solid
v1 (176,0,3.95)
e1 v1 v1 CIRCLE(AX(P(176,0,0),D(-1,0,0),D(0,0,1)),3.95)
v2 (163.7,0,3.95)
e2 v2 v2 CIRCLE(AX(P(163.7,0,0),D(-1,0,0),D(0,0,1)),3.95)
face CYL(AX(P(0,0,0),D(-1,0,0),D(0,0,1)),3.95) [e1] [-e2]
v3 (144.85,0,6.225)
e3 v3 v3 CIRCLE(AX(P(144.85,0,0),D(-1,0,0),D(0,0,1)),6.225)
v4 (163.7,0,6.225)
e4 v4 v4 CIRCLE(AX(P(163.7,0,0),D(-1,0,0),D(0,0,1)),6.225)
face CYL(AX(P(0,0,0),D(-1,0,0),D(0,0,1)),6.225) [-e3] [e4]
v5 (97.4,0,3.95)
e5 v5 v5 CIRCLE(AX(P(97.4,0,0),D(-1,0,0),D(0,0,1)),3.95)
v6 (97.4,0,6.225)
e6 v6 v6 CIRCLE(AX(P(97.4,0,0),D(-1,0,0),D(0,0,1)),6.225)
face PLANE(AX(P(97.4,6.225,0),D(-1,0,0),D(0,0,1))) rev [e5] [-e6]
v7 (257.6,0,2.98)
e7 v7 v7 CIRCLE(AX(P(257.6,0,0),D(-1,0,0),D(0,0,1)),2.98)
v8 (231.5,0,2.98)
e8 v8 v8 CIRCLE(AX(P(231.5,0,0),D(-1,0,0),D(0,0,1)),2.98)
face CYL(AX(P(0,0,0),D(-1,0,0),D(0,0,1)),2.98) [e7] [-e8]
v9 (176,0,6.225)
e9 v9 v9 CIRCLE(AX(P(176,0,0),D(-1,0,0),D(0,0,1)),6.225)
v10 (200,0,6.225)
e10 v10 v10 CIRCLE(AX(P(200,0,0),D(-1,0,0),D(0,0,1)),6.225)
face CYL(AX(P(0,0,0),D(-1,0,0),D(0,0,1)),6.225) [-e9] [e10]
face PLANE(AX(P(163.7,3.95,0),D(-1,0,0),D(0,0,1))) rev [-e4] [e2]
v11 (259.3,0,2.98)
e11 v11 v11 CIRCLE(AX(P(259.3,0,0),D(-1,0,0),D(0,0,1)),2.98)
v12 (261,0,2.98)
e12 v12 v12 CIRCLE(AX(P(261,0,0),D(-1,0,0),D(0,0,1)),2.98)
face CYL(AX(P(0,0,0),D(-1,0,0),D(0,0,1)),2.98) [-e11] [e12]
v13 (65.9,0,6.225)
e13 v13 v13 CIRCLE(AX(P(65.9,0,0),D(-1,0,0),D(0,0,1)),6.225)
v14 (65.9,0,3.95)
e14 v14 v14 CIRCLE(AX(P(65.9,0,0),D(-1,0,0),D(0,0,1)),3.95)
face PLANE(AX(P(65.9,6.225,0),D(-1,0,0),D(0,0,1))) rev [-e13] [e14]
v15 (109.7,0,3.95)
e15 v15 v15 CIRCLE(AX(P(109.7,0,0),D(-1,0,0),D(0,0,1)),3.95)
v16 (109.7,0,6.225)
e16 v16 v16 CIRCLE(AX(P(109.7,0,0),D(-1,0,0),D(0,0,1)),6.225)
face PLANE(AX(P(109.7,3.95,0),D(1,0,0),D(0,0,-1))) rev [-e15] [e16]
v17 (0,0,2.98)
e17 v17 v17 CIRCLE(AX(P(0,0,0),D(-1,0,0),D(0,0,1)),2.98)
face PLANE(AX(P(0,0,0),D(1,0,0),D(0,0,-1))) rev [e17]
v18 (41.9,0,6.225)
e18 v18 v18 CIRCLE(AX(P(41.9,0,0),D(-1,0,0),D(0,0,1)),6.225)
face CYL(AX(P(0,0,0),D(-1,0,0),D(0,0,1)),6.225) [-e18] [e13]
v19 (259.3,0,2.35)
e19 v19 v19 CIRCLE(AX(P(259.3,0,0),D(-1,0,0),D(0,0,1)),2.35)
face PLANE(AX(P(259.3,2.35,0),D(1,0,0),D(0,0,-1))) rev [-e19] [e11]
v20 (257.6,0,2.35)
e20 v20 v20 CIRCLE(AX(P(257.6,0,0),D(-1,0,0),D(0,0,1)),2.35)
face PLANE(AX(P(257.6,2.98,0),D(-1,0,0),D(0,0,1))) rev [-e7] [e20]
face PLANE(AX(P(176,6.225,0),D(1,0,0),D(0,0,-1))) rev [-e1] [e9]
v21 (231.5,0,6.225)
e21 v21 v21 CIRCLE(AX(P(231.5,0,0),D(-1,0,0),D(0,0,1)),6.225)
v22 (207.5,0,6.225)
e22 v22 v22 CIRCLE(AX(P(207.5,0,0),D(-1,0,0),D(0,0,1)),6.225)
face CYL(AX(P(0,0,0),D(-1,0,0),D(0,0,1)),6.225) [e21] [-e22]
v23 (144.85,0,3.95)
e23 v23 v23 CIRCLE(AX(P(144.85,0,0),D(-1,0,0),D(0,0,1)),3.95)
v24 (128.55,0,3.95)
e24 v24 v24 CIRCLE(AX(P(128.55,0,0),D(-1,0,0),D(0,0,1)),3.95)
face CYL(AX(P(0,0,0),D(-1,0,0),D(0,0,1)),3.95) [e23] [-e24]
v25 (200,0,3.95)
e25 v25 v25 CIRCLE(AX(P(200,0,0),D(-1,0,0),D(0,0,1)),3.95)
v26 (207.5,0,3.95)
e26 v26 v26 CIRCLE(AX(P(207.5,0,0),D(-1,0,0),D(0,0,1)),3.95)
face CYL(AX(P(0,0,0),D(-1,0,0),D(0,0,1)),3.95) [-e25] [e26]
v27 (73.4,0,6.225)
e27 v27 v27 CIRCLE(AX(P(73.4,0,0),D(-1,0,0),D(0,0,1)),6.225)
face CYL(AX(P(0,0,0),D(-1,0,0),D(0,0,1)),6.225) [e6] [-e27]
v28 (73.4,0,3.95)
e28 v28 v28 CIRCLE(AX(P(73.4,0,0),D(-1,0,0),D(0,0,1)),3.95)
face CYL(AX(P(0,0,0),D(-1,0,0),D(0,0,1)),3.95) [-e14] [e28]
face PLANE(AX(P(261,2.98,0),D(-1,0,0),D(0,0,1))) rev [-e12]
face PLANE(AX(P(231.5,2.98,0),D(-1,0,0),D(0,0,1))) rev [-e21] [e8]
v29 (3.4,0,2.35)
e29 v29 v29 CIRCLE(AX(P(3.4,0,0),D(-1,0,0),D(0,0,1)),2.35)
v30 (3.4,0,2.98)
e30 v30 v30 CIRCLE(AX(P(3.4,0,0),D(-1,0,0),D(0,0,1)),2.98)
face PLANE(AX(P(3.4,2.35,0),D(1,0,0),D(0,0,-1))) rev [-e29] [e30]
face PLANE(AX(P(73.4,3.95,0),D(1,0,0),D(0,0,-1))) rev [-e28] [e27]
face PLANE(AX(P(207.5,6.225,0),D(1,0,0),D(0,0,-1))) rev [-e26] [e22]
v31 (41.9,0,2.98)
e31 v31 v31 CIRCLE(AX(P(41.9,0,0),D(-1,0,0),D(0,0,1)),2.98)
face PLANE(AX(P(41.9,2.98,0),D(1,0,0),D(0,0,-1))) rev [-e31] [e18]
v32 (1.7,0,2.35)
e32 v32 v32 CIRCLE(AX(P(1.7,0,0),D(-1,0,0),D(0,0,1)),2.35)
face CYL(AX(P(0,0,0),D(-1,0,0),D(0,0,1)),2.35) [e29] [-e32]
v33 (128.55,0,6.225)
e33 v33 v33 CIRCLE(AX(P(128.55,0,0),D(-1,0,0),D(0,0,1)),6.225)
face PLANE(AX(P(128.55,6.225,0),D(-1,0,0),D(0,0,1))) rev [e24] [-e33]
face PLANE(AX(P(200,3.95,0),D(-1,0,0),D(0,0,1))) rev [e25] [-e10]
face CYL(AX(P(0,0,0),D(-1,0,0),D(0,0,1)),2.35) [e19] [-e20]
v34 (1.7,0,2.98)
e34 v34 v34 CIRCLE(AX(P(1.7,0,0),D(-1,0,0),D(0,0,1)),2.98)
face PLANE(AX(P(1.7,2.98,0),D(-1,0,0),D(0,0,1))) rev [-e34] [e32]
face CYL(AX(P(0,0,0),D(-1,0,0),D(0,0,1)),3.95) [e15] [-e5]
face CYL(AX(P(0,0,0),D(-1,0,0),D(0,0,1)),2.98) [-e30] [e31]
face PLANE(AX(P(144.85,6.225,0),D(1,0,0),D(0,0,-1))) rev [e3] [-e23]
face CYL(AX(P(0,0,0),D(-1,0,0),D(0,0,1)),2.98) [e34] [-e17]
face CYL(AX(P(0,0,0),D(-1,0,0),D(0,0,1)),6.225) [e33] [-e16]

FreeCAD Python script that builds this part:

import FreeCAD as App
import Part
import Sketcher
from FreeCAD import Vector

doc = App.newDocument("Part")
body = doc.addObject("PartDesign::Body", "Body")

# Sketch on XY plane
sketch1 = body.newObject("Sketcher::SketchObject", "Sketch")
sketch1.AttachmentSupport = (doc.getObject("XY_Plane"), [""])
sketch1.MapMode = "FlatFace"
sketch1.addGeometry([
    Part.LineSegment(Vector(0, 3, 0), Vector(0, 0, 0)),  # 0
    Part.LineSegment(Vector(0, 0, 0), Vector(261, 0, 0)),  # 1
    Part.LineSegment(Vector(261, 0, 0), Vector(261, 3, 0)),  # 2
    Part.LineSegment(Vector(261, 3, 0), Vector(259.3, 3, 0)),  # 3
    Part.LineSegment(Vector(259.3, 3, 0), Vector(259.3, 2.4, 0)),  # 4
    Part.LineSegment(Vector(259.3, 2.4, 0), Vector(257.6, 2.4, 0)),  # 5
    Part.LineSegment(Vector(257.6, 2.4, 0), Vector(257.6, 3, 0)),  # 6
    Part.LineSegment(Vector(257.6, 3, 0), Vector(231.5, 3, 0)),  # 7
    Part.LineSegment(Vector(231.5, 3, 0), Vector(231.5, 6.2, 0)),  # 8
    Part.LineSegment(Vector(231.5, 6.2, 0), Vector(207.5, 6.2, 0)),  # 9
    Part.LineSegment(Vector(207.5, 6.2, 0), Vector(207.5, 4, 0)),  # 10
    Part.LineSegment(Vector(207.5, 4, 0), Vector(200, 4, 0)),  # 11
    Part.LineSegment(Vector(200, 4, 0), Vector(200, 6.2, 0)),  # 12
    Part.LineSegment(Vector(200, 6.2, 0), Vector(176, 6.2, 0)),  # 13
    Part.LineSegment(Vector(176, 6.2, 0), Vector(176, 4, 0)),  # 14
    Part.LineSegment(Vector(176, 4, 0), Vector(163.7, 4, 0)),  # 15
    Part.LineSegment(Vector(163.7, 4, 0), Vector(163.7, 6.2, 0)),  # 16
    Part.LineSegment(Vector(163.7, 6.2, 0), Vector(144.8, 6.2, 0)),  # 17
    Part.LineSegment(Vector(144.8, 6.2, 0), Vector(144.8, 4, 0)),  # 18
    Part.LineSegment(Vector(144.8, 4, 0), Vector(128.6, 4, 0)),  # 19
    Part.LineSegment(Vector(128.6, 4, 0), Vector(128.6, 6.2, 0)),  # 20
    Part.LineSegment(Vector(128.6, 6.2, 0), Vector(109.7, 6.2, 0)),  # 21
    Part.LineSegment(Vector(109.7, 6.2, 0), Vector(109.7, 4, 0)),  # 22
    Part.LineSegment(Vector(109.7, 4, 0), Vector(97.4, 4, 0)),  # 23
    Part.LineSegment(Vector(97.4, 4, 0), Vector(97.4, 6.2, 0)),  # 24
    Part.LineSegment(Vector(97.4, 6.2, 0), Vector(73.4, 6.2, 0)),  # 25
    Part.LineSegment(Vector(73.4, 6.2, 0), Vector(73.4, 4, 0)),  # 26
    Part.LineSegment(Vector(73.4, 4, 0), Vector(65.9, 4, 0)),  # 27
    Part.LineSegment(Vector(65.9, 4, 0), Vector(65.9, 6.2, 0)),  # 28
    Part.LineSegment(Vector(65.9, 6.2, 0), Vector(41.9, 6.2, 0)),  # 29
    Part.LineSegment(Vector(41.9, 6.2, 0), Vector(41.9, 3, 0)),  # 30
    Part.LineSegment(Vector(41.9, 3, 0), Vector(3.4, 3, 0)),  # 31
    Part.LineSegment(Vector(3.4, 3, 0), Vector(3.4, 2.4, 0)),  # 32
    Part.LineSegment(Vector(3.4, 2.4, 0), Vector(1.7, 2.4, 0)),  # 33
    Part.LineSegment(Vector(1.7, 2.4, 0), Vector(1.7, 3, 0)),  # 34
    Part.LineSegment(Vector(1.7, 3, 0), Vector(0, 3, 0)),  # 35
], False)
sketch1.addConstraint([
    Sketcher.Constraint("Coincident", 0, 2, 1, 1),
    Sketcher.Constraint("Coincident", 1, 2, 2, 1),
    Sketcher.Constraint("Coincident", 2, 2, 3, 1),
    Sketcher.Constraint("Coincident", 3, 2, 4, 1),
    Sketcher.Constraint("Coincident", 4, 2, 5, 1),
    Sketcher.Constraint("Coincident", 5, 2, 6, 1),
    Sketcher.Constraint("Coincident", 6, 2, 7, 1),
    Sketcher.Constraint("Coincident", 7, 2, 8, 1),
    Sketcher.Constraint("Coincident", 8, 2, 9, 1),
    Sketcher.Constraint("Coincident", 9, 2, 10, 1),
    Sketcher.Constraint("Coincident", 10, 2, 11, 1),
    Sketcher.Constraint("Coincident", 11, 2, 12, 1),
    Sketcher.Constraint("Coincident", 12, 2, 13, 1),
    Sketcher.Constraint("Coincident", 13, 2, 14, 1),
    Sketcher.Constraint("Coincident", 14, 2, 15, 1),
    Sketcher.Constraint("Coincident", 15, 2, 16, 1),
    Sketcher.Constraint("Coincident", 16, 2, 17, 1),
    Sketcher.Constraint("Coincident", 17, 2, 18, 1),
    Sketcher.Constraint("Coincident", 18, 2, 19, 1),
    Sketcher.Constraint("Coincident", 19, 2, 20, 1),
    Sketcher.Constraint("Coincident", 20, 2, 21, 1),
    Sketcher.Constraint("Coincident", 21, 2, 22, 1),
    Sketcher.Constraint("Coincident", 22, 2, 23, 1),
    Sketcher.Constraint("Coincident", 23, 2, 24, 1),
    Sketcher.Constraint("Coincident", 24, 2, 25, 1),
    Sketcher.Constraint("Coincident", 25, 2, 26, 1),
    Sketcher.Constraint("Coincident", 26, 2, 27, 1),
    Sketcher.Constraint("Coincident", 27, 2, 28, 1),
    Sketcher.Constraint("Coincident", 28, 2, 29, 1),
    Sketcher.Constraint("Coincident", 29, 2, 30, 1),
    Sketcher.Constraint("Coincident", 30, 2, 31, 1),
    Sketcher.Constraint("Coincident", 31, 2, 32, 1),
    Sketcher.Constraint("Coincident", 32, 2, 33, 1),
    Sketcher.Constraint("Coincident", 33, 2, 34, 1),
    Sketcher.Constraint("Coincident", 34, 2, 35, 1),
    Sketcher.Constraint("Coincident", 35, 2, 0, 1),
    Sketcher.Constraint("Vertical", 0),
    Sketcher.Constraint("Horizontal", 1),
    Sketcher.Constraint("Vertical", 2),
    Sketcher.Constraint("Horizontal", 3),
    Sketcher.Constraint("Vertical", 4),
    Sketcher.Constraint("Horizontal", 5),
    Sketcher.Constraint("Vertical", 6),
    Sketcher.Constraint("Horizontal", 7),
    Sketcher.Constraint("Vertical", 8),
    Sketcher.Constraint("Horizontal", 9),
    Sketcher.Constraint("Vertical", 10),
    Sketcher.Constraint("Horizontal", 11),
    Sketcher.Constraint("Vertical", 12),
    Sketcher.Constraint("Horizontal", 13),
    Sketcher.Constraint("Vertical", 14),
    Sketcher.Constraint("Horizontal", 15),
    Sketcher.Constraint("Vertical", 16),
    Sketcher.Constraint("Horizontal", 17),
    Sketcher.Constraint("Vertical", 18),
    Sketcher.Constraint("Horizontal", 19),
    Sketcher.Constraint("Vertical", 20),
    Sketcher.Constraint("Horizontal", 21),
    Sketcher.Constraint("Vertical", 22),
    Sketcher.Constraint("Horizontal", 23),
    Sketcher.Constraint("Vertical", 24),
    Sketcher.Constraint("Horizontal", 25),
    Sketcher.Constraint("Vertical", 26),
    Sketcher.Constraint("Horizontal", 27),
    Sketcher.Constraint("Vertical", 28),
    Sketcher.Constraint("Horizontal", 29),
    Sketcher.Constraint("Vertical", 30),
    Sketcher.Constraint("Horizontal", 31),
    Sketcher.Constraint("Vertical", 32),
    Sketcher.Constraint("Horizontal", 33),
    Sketcher.Constraint("Vertical", 34),
    Sketcher.Constraint("Horizontal", 35),
    Sketcher.Constraint("Coincident", 0, 2, -1, 1),
    Sketcher.Constraint("Horizontal", 3, 2, 6, 2),
    Sketcher.Constraint("Horizontal", 9, 2, 12, 2),
    Sketcher.Constraint("Horizontal", 11, 2, 14, 2),
    Sketcher.Constraint("Horizontal", 13, 2, 16, 2),
    Sketcher.Constraint("Horizontal", 15, 2, 18, 2),
    Sketcher.Constraint("Horizontal", 17, 2, 20, 2),
    Sketcher.Constraint("Horizontal", 19, 2, 22, 2),
    Sketcher.Constraint("Horizontal", 21, 2, 24, 2),
    Sketcher.Constraint("Horizontal", 23, 2, 26, 2),
    Sketcher.Constraint("Horizontal", 25, 2, 28, 2),
    Sketcher.Constraint("Horizontal", 7, 2, 30, 2),
    Sketcher.Constraint("Horizontal", 5, 2, 32, 2),
    Sketcher.Constraint("Horizontal", 31, 2, 34, 2),
    Sketcher.Constraint("Equal", 3, 5),
    Sketcher.Constraint("Equal", 9, 13),
    Sketcher.Constraint("Equal", 17, 21),
    Sketcher.Constraint("Equal", 15, 23),
    Sketcher.Constraint("Equal", 13, 25),
    Sketcher.Constraint("Equal", 11, 27),
    Sketcher.Constraint("Equal", 25, 29),
    Sketcher.Constraint("Equal", 5, 33),
    Sketcher.Constraint("Equal", 33, 35),
    Sketcher.Constraint("DistanceX", 1, 1, 1, 2, 261.0),
    Sketcher.Constraint("DistanceX", 9, 2, 9, 1, 24.0),
    Sketcher.Constraint("DistanceX", 3, 2, 3, 1, 1.7),
    Sketcher.Constraint("DistanceX", 7, 2, 7, 1, 26.1),
    Sketcher.Constraint("DistanceX", 11, 2, 11, 1, 7.5),
    Sketcher.Constraint("DistanceX", 15, 2, 15, 1, 12.3),
    Sketcher.Constraint("DistanceX", 19, 2, 19, 1, 16.3),
    Sketcher.Constraint("DistanceX", 31, 2, 31, 1, 38.5),
    Sketcher.Constraint("DistanceY", 0, 2, 0, 1, 2.98),
    Sketcher.Constraint("DistanceY", 4, 2, 4, 1, 0.63),
    Sketcher.Constraint("DistanceY", 5, 2, 10, 2, 1.6),
    Sketcher.Constraint("DistanceY", 8, 1, 8, 2, 3.245),
])
revolution = body.newObject("PartDesign::Revolution", "Revolution")
revolution.Profile = sketch1
revolution.ReferenceAxis = (sketch1, ["H_Axis"])
revolution.Angle = 360

doc.recompute()
